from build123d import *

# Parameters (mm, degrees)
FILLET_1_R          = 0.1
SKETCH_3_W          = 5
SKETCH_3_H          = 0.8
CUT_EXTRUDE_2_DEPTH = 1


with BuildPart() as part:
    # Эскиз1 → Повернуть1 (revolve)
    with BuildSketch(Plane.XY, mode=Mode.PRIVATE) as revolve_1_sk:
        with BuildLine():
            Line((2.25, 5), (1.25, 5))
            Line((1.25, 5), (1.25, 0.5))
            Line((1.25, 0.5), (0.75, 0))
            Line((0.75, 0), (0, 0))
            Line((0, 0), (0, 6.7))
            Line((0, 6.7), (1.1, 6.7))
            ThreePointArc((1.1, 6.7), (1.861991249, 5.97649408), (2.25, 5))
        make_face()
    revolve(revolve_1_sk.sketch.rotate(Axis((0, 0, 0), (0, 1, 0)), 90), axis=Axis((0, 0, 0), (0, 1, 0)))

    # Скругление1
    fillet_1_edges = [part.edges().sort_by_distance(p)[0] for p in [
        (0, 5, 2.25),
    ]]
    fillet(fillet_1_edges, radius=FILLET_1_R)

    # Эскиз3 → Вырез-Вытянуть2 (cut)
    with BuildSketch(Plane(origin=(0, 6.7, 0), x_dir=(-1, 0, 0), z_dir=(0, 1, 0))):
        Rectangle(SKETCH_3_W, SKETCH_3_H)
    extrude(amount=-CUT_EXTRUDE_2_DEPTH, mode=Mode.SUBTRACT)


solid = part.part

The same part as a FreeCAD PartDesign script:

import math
import FreeCAD as App
import Part
import Sketcher

V = App.Vector
Q = App.Units.Quantity


def edges_at(feature, points):
    """Names of the edges that pass closest to the given points."""
    edges = feature.Shape.Edges
    near = lambda p: min(range(len(edges)), key=lambda i: edges[i].distToShape(Part.Vertex(*p))[0])
    return sorted({f"Edge{near(p) + 1}" for p in points})


def add_polygon(sketch, points):
    """Adds a closed chain of lines whose ends are joined by coincident constraints."""
    first, n = sketch.GeometryCount, len(points)
    for a, b in zip(points, points[1:] + points[:1]):
        sketch.addGeometry(Part.LineSegment(App.Vector(*a, 0), App.Vector(*b, 0)), False)
    for i in range(n):
        sketch.addConstraint(Sketcher.Constraint("Coincident", first + i, 2, first + (i + 1) % n, 1))

doc = App.newDocument("Part")
body = doc.addObject("PartDesign::Body", "Body")

# Sketch on XY plane
sketch1 = body.newObject("Sketcher::SketchObject", "Sketch")
sketch1.AttachmentSupport = (doc.getObject("XY_Plane"), [""])
sketch1.MapMode = "FlatFace"
sketch1.addGeometry([
    Part.LineSegment(V(1.2, 5, 0), V(2.2, 5, 0)),  # 0
    Part.ArcOfCircle(Part.Circle(V(-0.2, 4.6, 0), V(0, 0, 1), 2.4), math.radians(9), math.radians(59)),  # 1
    Part.LineSegment(V(1.1, 6.7, 0), V(0, 6.7, 0)),  # 2
    Part.LineSegment(V(0, 6.7, 0), V(0, 0, 0)),  # 3
    Part.LineSegment(V(0, 0, 0), V(0.8, 0, 0)),  # 4
    Part.LineSegment(V(0.8, 0, 0), V(1.2, 0.5, 0)),  # 5
    Part.LineSegment(V(1.2, 0.5, 0), V(1.2, 5, 0)),  # 6
], False)
sketch1.addConstraint([
    Sketcher.Constraint("Coincident", 0, 2, 1, 1),
    Sketcher.Constraint("Coincident", 1, 2, 2, 1),
    Sketcher.Constraint("Coincident", 2, 2, 3, 1),
    Sketcher.Constraint("Coincident", 3, 2, 4, 1),
    Sketcher.Constraint("Coincident", 4, 2, 5, 1),
    Sketcher.Constraint("Coincident", 5, 2, 6, 1),
    Sketcher.Constraint("Coincident", 6, 2, 0, 1),
    Sketcher.Constraint("Horizontal", 0),
    Sketcher.Constraint("Horizontal", 2),
    Sketcher.Constraint("Vertical", 3),
    Sketcher.Constraint("Horizontal", 4),
    Sketcher.Constraint("Vertical", 6),
    Sketcher.Constraint("Coincident", 3, 2, -1, 1),
    Sketcher.Constraint("DistanceX", 0, 1, 0, 2, Q("1 mm")),
    Sketcher.Constraint("Angle", 5, Q("45 deg")),
    Sketcher.Constraint("DistanceX", 2, 2, 2, 1, Q("1.1 mm")),
    Sketcher.Constraint("DistanceY", 3, 2, 3, 1, Q("6.7 mm")),
    Sketcher.Constraint("DistanceY", 6, 1, 6, 2, Q("4.5 mm")),
    Sketcher.Constraint("DistanceY", -1, 1, 0, 2, Q("5 mm")),
    Sketcher.Constraint("DistanceX", 4, 1, 4, 2, Q("0.75 mm")),
    Sketcher.Constraint("Radius", 1, Q("2.445303 mm")),
])
revolution = body.newObject("PartDesign::Revolution", "Revolution")
revolution.Profile = sketch1
revolution.ReferenceAxis = (sketch1, ["V_Axis"])
revolution.Angle = 360
doc.recompute()

fillet = body.newObject("PartDesign::Fillet", "Fillet")
fillet.Base = (revolution, edges_at(revolution, [(0, 5, 2.25)]))
fillet.Radius = 0.1

# Sketch on XZ plane
sketch2 = body.newObject("Sketcher::SketchObject", "Sketch001")
sketch2.AttachmentSupport = (doc.getObject("XZ_Plane"), [""])
sketch2.MapMode = "FlatFace"
sketch2.AttachmentOffset = App.Placement(V(0, 0, -6.7), App.Rotation())
add_polygon(sketch2, [(2.5, 0.4), (2.5, -0.4), (-2.5, -0.4), (-2.5, 0.4)])  # lines 0-3
sketch2.addConstraint([
    Sketcher.Constraint("Vertical", 0),
    Sketcher.Constraint("Horizontal", 1),
    Sketcher.Constraint("Vertical", 2),
    Sketcher.Constraint("Horizontal", 3),
    Sketcher.Constraint("Symmetric", 0, 2, 2, 2, -1, 1),
    Sketcher.Constraint("DistanceX", 1, 2, 1, 1, Q("5 mm")),
    Sketcher.Constraint("DistanceY", 0, 2, 0, 1, Q("0.8 mm")),
])
pocket1 = body.newObject("PartDesign::Pocket", "Pocket")
pocket1.Profile = sketch2
pocket1.Length = 1
pocket1.Reversed = True

doc.recompute()
